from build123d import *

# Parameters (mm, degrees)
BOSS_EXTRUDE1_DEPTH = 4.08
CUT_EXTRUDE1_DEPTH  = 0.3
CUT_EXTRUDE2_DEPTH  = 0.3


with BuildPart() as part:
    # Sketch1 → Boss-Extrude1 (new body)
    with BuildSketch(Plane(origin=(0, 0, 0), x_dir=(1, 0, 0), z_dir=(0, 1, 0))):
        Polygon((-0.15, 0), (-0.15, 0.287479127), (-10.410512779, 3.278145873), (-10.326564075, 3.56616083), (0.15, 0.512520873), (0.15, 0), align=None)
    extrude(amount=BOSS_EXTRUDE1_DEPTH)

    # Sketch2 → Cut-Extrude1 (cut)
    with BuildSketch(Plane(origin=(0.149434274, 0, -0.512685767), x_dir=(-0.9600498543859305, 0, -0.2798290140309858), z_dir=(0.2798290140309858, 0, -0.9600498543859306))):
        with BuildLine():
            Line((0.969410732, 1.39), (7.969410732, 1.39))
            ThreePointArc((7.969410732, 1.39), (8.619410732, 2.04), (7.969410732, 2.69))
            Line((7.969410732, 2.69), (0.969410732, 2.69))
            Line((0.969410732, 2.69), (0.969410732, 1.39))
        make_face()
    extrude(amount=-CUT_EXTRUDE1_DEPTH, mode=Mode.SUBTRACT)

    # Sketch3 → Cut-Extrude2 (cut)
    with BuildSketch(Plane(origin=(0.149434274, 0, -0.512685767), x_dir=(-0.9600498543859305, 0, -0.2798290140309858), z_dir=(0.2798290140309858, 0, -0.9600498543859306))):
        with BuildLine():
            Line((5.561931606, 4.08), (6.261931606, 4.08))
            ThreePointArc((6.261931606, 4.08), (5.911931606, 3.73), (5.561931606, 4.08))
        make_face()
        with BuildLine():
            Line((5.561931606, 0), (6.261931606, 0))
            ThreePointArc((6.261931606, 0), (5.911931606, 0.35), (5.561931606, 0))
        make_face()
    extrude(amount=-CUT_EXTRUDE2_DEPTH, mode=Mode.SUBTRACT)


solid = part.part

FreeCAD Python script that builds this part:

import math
import FreeCAD as App
import Part
import Sketcher
from FreeCAD import Vector
Q = App.Units.Quantity

doc = App.newDocument("Part")
body = doc.addObject("PartDesign::Body", "Body")

# Sketch on XZ plane
sketch1 = body.newObject("Sketcher::SketchObject", "Sketch")
sketch1.AttachmentSupport = (doc.getObject("XZ_Plane"), [""])
sketch1.MapMode = "FlatFace"
sketch1.addGeometry([
    Part.LineSegment(Vector(-0.15, -0.29, 0), Vector(-0.15, 0, 0)),  # 0
    Part.LineSegment(Vector(-0.15, 0, 0), Vector(0.15, 0, 0)),  # 1
    Part.LineSegment(Vector(0.15, 0, 0), Vector(0.15, -0.51, 0)),  # 2
    Part.LineSegment(Vector(0.15, -0.51, 0), Vector(-10.33, -3.57, 0)),  # 3
    Part.LineSegment(Vector(-10.33, -3.57, 0), Vector(-10.41, -3.28, 0)),  # 4
    Part.LineSegment(Vector(-10.41, -3.28, 0), Vector(-0.15, -0.29, 0)),  # 5
], False)
sketch1.addConstraint([
    Sketcher.Constraint("Coincident", 0, 2, 1, 1),
    Sketcher.Constraint("Coincident", 1, 2, 2, 1),
    Sketcher.Constraint("Coincident", 2, 2, 3, 1),
    Sketcher.Constraint("Coincident", 3, 2, 4, 1),
    Sketcher.Constraint("Coincident", 4, 2, 5, 1),
    Sketcher.Constraint("Coincident", 5, 2, 0, 1),
    Sketcher.Constraint("Vertical", 0),
    Sketcher.Constraint("Horizontal", 1),
    Sketcher.Constraint("Vertical", 2),
    Sketcher.Constraint("Symmetric", 0, 2, 1, 2, -1, 1),
    Sketcher.Constraint("Perpendicular", 3, 4),
    Sketcher.Constraint("Perpendicular", 4, 5),
    Sketcher.Constraint("DistanceX", 1, 1, 1, 2, 0.3),
    Sketcher.Constraint("Distance", 4, 0.3),
    Sketcher.Constraint("Angle", 3, Q("-163.75 deg")),
    Sketcher.Constraint("DistanceY", 0, 1, 0, 2, 0.287479),
    Sketcher.Constraint("Distance", 3, 10.912521),
])
pad1 = body.newObject("PartDesign::Pad", "Pad")
pad1.Profile = sketch1
pad1.Length = 4.08
pad1.Reversed = True

# Sketch on an angled plane
sketch2 = body.newObject("Sketcher::SketchObject", "Sketch001")
sketch2.Placement = App.Placement(Vector(0.149434, 0, -0.512686), App.Rotation(Vector(-0.960049854, 0, -0.279829014), Vector(0, 0.999999999, 0), Vector(0.279829014, 0, -0.960049854), "ZXY"))
sketch2.addGeometry([
    Part.LineSegment(Vector(1, 1.4, 0), Vector(8, 1.4, 0)),
    Part.ArcOfCircle(Part.Circle(Vector(8, 2, 0), Vector(0, 0, 1), 0.7), math.radians(-90), math.radians(90)),
    Part.LineSegment(Vector(8, 2.7, 0), Vector(1, 2.7, 0)),
    Part.LineSegment(Vector(1, 2.7, 0), Vector(1, 1.4, 0)),
], False)
sketch2.addConstraint([
    Sketcher.Constraint("Tangent", 0, 2, 1, 1),
    Sketcher.Constraint("Tangent", 1, 2, 2, 1),
    Sketcher.Constraint("Coincident", 2, 2, 3, 1),
    Sketcher.Constraint("Coincident", 3, 2, 0, 1),
    Sketcher.Constraint("Horizontal", 0),
    Sketcher.Constraint("Horizontal", 2),
    Sketcher.Constraint("Vertical", 3),
    Sketcher.Constraint("DistanceX", 0, 1, 0, 2, 7.0),
    Sketcher.Constraint("Radius", 1, 0.65),
    Sketcher.Constraint("DistanceY", -1, 1, 1, 3, 2.04),
    Sketcher.Constraint("DistanceX", -1, 1, 1, 3, 7.969411),
])
pocket1 = body.newObject("PartDesign::Pocket", "Pocket")
pocket1.Profile = sketch2
pocket1.Length = 0.3

# Sketch on an angled plane
sketch3 = body.newObject("Sketcher::SketchObject", "Sketch002")
sketch3.Placement = App.Placement(Vector(0.149434, 0, -0.512686), App.Rotation(Vector(-0.960049854, 0, -0.279829014), Vector(0, 0.999999999, 0), Vector(0.279829014, 0, -0.960049854), "ZXY"))
sketch3.addGeometry([
    Part.LineSegment(Vector(6.26, 4.08, 0), Vector(5.56, 4.08, 0)),
    Part.ArcOfCircle(Part.Circle(Vector(5.91, 4.08, 0), Vector(0, 0, 1), 0.35), math.radians(180), math.radians(360)),
    Part.LineSegment(Vector(5.56, 0, 0), Vector(6.26, 0, 0)),
    Part.ArcOfCircle(Part.Circle(Vector(5.91, 0, 0), Vector(0, 0, 1), 0.35), math.radians(0), math.radians(180)),
], False)
sketch3.addConstraint([
    Sketcher.Constraint("Coincident", 0, 1, 1, 2),
    Sketcher.Constraint("Coincident", 1, 1, 0, 2),
    Sketcher.Constraint("Coincident", 2, 1, 3, 2),
    Sketcher.Constraint("Coincident", 3, 1, 2, 2),
    Sketcher.Constraint("Horizontal", 0),
    Sketcher.Constraint("Horizontal", 2),
    Sketcher.Constraint("Equal", 1, 3),
    Sketcher.Constraint("PointOnObject", 3, 3, -1),
    Sketcher.Constraint("PointOnObject", 2, 1, -1),
    Sketcher.Constraint("Horizontal", 1, 3, 0, 1),
    Sketcher.Constraint("Vertical", 1, 3, 3, 3),
    Sketcher.Constraint("Radius", 1, 0.35),
    Sketcher.Constraint("DistanceY", -1, 1, 1, 3, 4.08),
    Sketcher.Constraint("DistanceX", -1, 1, 1, 3, 5.911932),
])
pocket2 = body.newObject("PartDesign::Pocket", "Pocket001")
pocket2.Profile = sketch3
pocket2.Length = 0.3

doc.recompute()
